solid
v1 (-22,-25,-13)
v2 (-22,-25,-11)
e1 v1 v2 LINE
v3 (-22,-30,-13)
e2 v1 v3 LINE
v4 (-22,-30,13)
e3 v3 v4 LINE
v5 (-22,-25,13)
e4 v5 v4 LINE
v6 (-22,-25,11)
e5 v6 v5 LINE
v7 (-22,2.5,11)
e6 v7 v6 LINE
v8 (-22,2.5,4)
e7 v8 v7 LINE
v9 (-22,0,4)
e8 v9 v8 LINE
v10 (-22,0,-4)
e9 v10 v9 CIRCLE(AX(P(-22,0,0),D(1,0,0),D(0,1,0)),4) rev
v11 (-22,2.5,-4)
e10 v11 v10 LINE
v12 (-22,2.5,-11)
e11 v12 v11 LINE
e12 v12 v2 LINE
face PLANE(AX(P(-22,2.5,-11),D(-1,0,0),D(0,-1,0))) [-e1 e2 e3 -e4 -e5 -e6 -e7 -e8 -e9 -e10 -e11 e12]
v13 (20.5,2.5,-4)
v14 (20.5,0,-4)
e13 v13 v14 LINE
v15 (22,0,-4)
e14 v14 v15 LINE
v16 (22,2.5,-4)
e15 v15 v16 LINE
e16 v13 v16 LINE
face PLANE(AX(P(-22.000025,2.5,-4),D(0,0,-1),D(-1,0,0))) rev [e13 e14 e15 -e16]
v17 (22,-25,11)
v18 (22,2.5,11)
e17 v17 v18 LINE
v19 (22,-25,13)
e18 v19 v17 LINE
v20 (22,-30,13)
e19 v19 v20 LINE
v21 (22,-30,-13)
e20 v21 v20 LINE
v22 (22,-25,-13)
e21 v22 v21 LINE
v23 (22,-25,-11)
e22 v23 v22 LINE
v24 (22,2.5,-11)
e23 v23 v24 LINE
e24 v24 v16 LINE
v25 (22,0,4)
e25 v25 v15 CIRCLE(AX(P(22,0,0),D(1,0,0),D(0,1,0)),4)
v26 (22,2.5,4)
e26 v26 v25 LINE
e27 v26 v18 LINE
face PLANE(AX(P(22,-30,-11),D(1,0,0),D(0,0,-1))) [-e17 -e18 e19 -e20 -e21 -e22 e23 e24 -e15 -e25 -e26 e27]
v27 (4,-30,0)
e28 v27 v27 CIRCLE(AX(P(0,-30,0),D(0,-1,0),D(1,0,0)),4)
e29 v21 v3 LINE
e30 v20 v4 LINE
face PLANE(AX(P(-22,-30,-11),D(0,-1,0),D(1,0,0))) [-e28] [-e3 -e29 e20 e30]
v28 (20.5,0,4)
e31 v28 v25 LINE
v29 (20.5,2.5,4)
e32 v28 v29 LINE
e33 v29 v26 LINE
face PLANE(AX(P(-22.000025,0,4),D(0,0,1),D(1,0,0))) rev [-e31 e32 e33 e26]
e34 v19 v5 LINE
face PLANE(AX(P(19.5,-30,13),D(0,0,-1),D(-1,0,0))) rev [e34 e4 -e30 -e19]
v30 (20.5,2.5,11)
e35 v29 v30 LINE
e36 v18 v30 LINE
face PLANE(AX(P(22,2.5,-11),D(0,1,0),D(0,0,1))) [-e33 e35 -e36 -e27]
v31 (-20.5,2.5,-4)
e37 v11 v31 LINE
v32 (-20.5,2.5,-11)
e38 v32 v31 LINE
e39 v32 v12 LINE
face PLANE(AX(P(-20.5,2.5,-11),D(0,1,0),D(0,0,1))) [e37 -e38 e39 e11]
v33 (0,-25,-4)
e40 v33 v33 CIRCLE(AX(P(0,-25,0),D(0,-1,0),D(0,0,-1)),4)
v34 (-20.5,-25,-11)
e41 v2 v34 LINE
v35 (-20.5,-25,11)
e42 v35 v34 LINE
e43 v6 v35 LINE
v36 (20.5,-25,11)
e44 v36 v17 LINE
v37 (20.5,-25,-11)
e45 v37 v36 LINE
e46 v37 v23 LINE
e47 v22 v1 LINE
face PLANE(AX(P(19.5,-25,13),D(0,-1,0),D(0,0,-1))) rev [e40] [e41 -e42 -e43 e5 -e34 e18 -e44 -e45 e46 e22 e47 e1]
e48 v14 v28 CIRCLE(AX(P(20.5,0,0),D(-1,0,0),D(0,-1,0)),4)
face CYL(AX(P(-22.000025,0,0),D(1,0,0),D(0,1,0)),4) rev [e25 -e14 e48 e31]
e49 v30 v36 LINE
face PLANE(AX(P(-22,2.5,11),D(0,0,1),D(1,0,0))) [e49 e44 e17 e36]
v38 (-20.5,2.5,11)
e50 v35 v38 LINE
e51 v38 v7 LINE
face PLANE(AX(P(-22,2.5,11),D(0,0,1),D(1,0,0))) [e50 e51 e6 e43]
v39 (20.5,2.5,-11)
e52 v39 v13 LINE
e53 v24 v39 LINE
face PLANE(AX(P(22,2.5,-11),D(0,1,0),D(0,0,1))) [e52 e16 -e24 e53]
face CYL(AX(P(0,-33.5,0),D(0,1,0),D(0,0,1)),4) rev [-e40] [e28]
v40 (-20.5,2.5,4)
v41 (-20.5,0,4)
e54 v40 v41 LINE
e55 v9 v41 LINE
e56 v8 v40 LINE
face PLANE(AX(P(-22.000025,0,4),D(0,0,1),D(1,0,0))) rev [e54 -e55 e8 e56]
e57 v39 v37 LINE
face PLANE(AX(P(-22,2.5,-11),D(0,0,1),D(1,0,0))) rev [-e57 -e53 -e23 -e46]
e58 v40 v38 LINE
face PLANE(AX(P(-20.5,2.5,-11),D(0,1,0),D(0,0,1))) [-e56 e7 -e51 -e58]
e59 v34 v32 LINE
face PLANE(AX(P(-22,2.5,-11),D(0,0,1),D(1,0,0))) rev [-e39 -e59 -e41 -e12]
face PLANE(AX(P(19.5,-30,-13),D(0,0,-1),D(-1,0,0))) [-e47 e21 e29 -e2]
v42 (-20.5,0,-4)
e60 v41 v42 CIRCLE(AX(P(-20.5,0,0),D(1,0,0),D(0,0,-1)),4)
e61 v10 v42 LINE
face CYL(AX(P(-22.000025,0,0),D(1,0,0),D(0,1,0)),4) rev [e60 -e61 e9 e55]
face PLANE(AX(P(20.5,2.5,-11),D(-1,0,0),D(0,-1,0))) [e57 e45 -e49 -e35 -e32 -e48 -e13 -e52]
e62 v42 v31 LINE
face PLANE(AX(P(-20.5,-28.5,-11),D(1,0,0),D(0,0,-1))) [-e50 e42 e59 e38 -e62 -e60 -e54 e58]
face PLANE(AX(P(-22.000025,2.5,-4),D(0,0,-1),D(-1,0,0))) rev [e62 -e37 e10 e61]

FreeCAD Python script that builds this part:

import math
import FreeCAD as App
import Part
import Sketcher
from FreeCAD import Vector


def add_polygon(sketch, points):
    """Adds a closed chain of lines whose ends are joined by coincident constraints."""
    first, n = sketch.GeometryCount, len(points)
    for a, b in zip(points, points[1:] + points[:1]):
        sketch.addGeometry(Part.LineSegment(App.Vector(*a, 0), App.Vector(*b, 0)), False)
    for i in range(n):
        sketch.addConstraint(Sketcher.Constraint("Coincident", first + i, 2, first + (i + 1) % n, 1))

doc = App.newDocument("Part")
body = doc.addObject("PartDesign::Body", "Body")

sketch1 = body.newObject("Sketcher::SketchObject", "Sketch")
sketch1.AttachmentSupport = (doc.getObject("XY_Plane"), [""])
sketch1.MapMode = "FlatFace"
add_polygon(sketch1, [(-22, 2.5), (-22, -30), (22, -30), (22, 2.5), (20.5, 2.5), (20.5, -28.5), (-20.5, -28.5), (-20.5, 2.5)])
sketch1.addConstraint(Sketcher.Constraint("Vertical", 0))
sketch1.addConstraint(Sketcher.Constraint("Horizontal", 1))
sketch1.addConstraint(Sketcher.Constraint("Vertical", 2))
sketch1.addConstraint(Sketcher.Constraint("Horizontal", 3))
sketch1.addConstraint(Sketcher.Constraint("Vertical", 4))
sketch1.addConstraint(Sketcher.Constraint("Horizontal", 5))
sketch1.addConstraint(Sketcher.Constraint("Vertical", 6))
sketch1.addConstraint(Sketcher.Constraint("Horizontal", 7))
sketch1.addConstraint(Sketcher.Constraint("Symmetric", 3, 2, 6, 2, -2))
sketch1.addConstraint(Sketcher.Constraint("Equal", 3, 7))
sketch1.addConstraint(Sketcher.Constraint("DistanceX", 1, 1, 1, 2, 44.0))
sketch1.addConstraint(Sketcher.Constraint("DistanceX", 5, 2, 5, 1, 41.0))
sketch1.addConstraint(Sketcher.Constraint("DistanceY", 4, 2, 4, 1, 31.0))
sketch1.addConstraint(Sketcher.Constraint("DistanceY", 0, 2, 0, 1, 32.5))
sketch1.addConstraint(Sketcher.Constraint("DistanceY", 0, 2, -1, 1, 30.0))
pad1 = body.newObject("PartDesign::Pad", "Pad")
pad1.Profile = sketch1
pad1.Length = 22
pad1.Midplane = True

sketch2 = body.newObject("Sketcher::SketchObject", "Sketch001")
sketch2.AttachmentSupport = (doc.getObject("YZ_Plane"), [""])
sketch2.MapMode = "FlatFace"
add_polygon(sketch2, [(-30, 13), (-30, 11), (-28.5, 11), (-28.5, 11.5), (-25, 11.5), (-25, 13)])
sketch2.addConstraint(Sketcher.Constraint("Vertical", 0))
sketch2.addConstraint(Sketcher.Constraint("Horizontal", 1))
sketch2.addConstraint(Sketcher.Constraint("Vertical", 2))
sketch2.addConstraint(Sketcher.Constraint("Horizontal", 3))
sketch2.addConstraint(Sketcher.Constraint("Vertical", 4))
sketch2.addConstraint(Sketcher.Constraint("Horizontal", 5))
sketch2.addConstraint(Sketcher.Constraint("Equal", 1, 4))
sketch2.addConstraint(Sketcher.Constraint("DistanceX", 5, 2, 5, 1, 5.0))
sketch2.addConstraint(Sketcher.Constraint("DistanceY", 0, 2, 0, 1, 2.0))
sketch2.addConstraint(Sketcher.Constraint("DistanceX", 1, 1, 1, 2, 1.5))
sketch2.addConstraint(Sketcher.Constraint("DistanceX", 0, 2, -1, 1, 30.0))
sketch2.addConstraint(Sketcher.Constraint("DistanceY", -1, 1, 0, 2, 11.0))
pad2 = body.newObject("PartDesign::Pad", "Pad001")
pad2.Profile = sketch2
pad2.Length = 39
pad2.Midplane = True
doc.recompute()

mirrored = body.newObject("PartDesign::Mirrored", "Mirrored")
mirrored.Originals = [pad2]
mirrored.MirrorPlane = (doc.getObject("XY_Plane"), [""])
body.Tip = mirrored

sketch3 = body.newObject("Sketcher::SketchObject", "Sketch002")
sketch3.AttachmentSupport = (doc.getObject("XZ_Plane"), [""])
sketch3.MapMode = "FlatFace"
sketch3.AttachmentOffset = App.Placement(Vector(0, 0, 28.5), App.Rotation())
sketch3.addGeometry(Part.Circle(Vector(0, 0, 0), Vector(0, 0, 1), 4), False)
sketch3.addConstraint(Sketcher.Constraint("Coincident", 0, 3, -1, 1))
sketch3.addConstraint(Sketcher.Constraint("Diameter", 0, 8.0))
pocket1 = body.newObject("PartDesign::Pocket", "Pocket")
pocket1.Profile = sketch3
pocket1.Type = "ThroughAll"
pocket1.Reversed = True

sketch4 = body.newObject("Sketcher::SketchObject", "Sketch003")
sketch4.AttachmentSupport = (doc.getObject("YZ_Plane"), [""])
sketch4.MapMode = "FlatFace"
sketch4.AttachmentOffset = App.Placement(Vector(0, 0, 22), App.Rotation())
sketch4.addGeometry(Part.LineSegment(Vector(2.5, 4, 0), Vector(0, 4, 0)), False)
sketch4.addGeometry(Part.ArcOfCircle(Part.Circle(Vector(0, 0, 0), Vector(0, 0, 1), 4), math.radians(90), math.radians(270)), False)
sketch4.addGeometry(Part.LineSegment(Vector(0, -4, 0), Vector(2.5, -4, 0)), False)
sketch4.addGeometry(Part.LineSegment(Vector(2.5, -4, 0), Vector(2.5, 4, 0)), False)
sketch4.addConstraint(Sketcher.Constraint("Tangent", 0, 2, 1, 1))
sketch4.addConstraint(Sketcher.Constraint("Tangent", 1, 2, 2, 1))
sketch4.addConstraint(Sketcher.Constraint("Coincident", 2, 2, 3, 1))
sketch4.addConstraint(Sketcher.Constraint("Coincident", 3, 2, 0, 1))
sketch4.addConstraint(Sketcher.Constraint("Horizontal", 0))
sketch4.addConstraint(Sketcher.Constraint("Horizontal", 2))
sketch4.addConstraint(Sketcher.Constraint("Vertical", 3))
sketch4.addConstraint(Sketcher.Constraint("Coincident", 1, 3, -1, 1))
sketch4.addConstraint(Sketcher.Constraint("Radius", 1, 4.0))
sketch4.addConstraint(Sketcher.Constraint("DistanceX", 0, 2, 0, 1, 2.5))
pocket2 = body.newObject("PartDesign::Pocket", "Pocket001")
pocket2.Profile = sketch4
pocket2.Type = "ThroughAll"

sketch5 = body.newObject("Sketcher::SketchObject", "Sketch004")
sketch5.AttachmentSupport = (doc.getObject("XZ_Plane"), [""])
sketch5.MapMode = "FlatFace"
sketch5.AttachmentOffset = App.Placement(Vector(0, 0, 30), App.Rotation())
add_polygon(sketch5, [(-22, 13), (-22, -13), (22, -13), (22, 13)])
sketch5.addConstraint(Sketcher.Constraint("Vertical", 0))
sketch5.addConstraint(Sketcher.Constraint("Horizontal", 1))
sketch5.addConstraint(Sketcher.Constraint("Vertical", 2))
sketch5.addConstraint(Sketcher.Constraint("Horizontal", 3))
sketch5.addConstraint(Sketcher.Constraint("Symmetric", 0, 2, 2, 2, -1, 1))
sketch5.addConstraint(Sketcher.Constraint("DistanceX", 1, 1, 1, 2, 44.0))
sketch5.addConstraint(Sketcher.Constraint("DistanceY", 0, 2, 0, 1, 26.0))
pad3 = body.newObject("PartDesign::Pad", "Pad002")
pad3.Profile = sketch5
pad3.Length = 5
pad3.Reversed = True

sketch6 = body.newObject("Sketcher::SketchObject", "Sketch005")
sketch6.AttachmentSupport = (doc.getObject("XZ_Plane"), [""])
sketch6.MapMode = "FlatFace"
sketch6.AttachmentOffset = App.Placement(Vector(0, 0, 28.5), App.Rotation())
sketch6.addGeometry(Part.Circle(Vector(0, 0, 0), Vector(0, 0, 1), 4), False)
sketch6.addConstraint(Sketcher.Constraint("Coincident", 0, 3, -1, 1))
sketch6.addConstraint(Sketcher.Constraint("Diameter", 0, 8.0))
pocket3 = body.newObject("PartDesign::Pocket", "Pocket002")
pocket3.Profile = sketch6
pocket3.Length = 10
pocket3.Midplane = True

doc.recompute()
